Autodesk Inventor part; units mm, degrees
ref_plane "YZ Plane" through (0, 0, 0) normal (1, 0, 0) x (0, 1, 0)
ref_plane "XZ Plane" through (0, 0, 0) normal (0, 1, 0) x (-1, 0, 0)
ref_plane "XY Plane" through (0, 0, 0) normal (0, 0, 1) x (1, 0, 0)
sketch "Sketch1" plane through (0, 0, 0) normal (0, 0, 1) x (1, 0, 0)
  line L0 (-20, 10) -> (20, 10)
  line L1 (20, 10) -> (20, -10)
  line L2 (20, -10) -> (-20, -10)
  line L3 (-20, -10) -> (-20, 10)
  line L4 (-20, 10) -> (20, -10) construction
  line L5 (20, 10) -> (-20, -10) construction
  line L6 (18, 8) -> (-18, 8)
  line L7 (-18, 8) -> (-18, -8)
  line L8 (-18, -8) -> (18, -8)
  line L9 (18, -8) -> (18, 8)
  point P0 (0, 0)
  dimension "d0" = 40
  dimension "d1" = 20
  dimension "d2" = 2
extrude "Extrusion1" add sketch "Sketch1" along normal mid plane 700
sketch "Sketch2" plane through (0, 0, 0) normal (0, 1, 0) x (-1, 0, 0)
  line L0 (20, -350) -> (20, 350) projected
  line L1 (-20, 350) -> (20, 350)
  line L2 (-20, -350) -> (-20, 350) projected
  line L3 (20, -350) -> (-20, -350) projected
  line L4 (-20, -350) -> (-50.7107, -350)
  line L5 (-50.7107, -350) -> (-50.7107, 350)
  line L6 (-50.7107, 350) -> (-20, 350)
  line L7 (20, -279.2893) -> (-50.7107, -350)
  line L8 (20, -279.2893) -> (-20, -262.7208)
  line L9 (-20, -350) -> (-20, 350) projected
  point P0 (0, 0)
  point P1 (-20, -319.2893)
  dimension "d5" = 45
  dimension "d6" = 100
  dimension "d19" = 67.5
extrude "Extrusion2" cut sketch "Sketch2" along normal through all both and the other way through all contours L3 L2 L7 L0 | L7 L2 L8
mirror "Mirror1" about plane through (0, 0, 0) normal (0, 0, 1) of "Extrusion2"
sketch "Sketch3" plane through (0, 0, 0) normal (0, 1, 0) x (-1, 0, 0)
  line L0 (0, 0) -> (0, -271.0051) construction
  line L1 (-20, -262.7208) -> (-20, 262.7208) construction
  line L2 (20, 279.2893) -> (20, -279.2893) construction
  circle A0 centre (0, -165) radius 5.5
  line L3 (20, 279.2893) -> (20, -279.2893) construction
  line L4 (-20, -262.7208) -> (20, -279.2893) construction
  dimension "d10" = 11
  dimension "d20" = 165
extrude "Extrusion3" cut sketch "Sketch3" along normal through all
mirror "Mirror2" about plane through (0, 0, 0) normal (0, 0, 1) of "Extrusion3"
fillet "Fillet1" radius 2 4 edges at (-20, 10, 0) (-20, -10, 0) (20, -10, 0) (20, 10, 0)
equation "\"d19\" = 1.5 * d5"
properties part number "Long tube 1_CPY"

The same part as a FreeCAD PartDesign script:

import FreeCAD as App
import Part
import Sketcher

V = App.Vector
Q = App.Units.Quantity


def edges_at(feature, points):
    """Names of the edges that pass closest to the given points."""
    edges = feature.Shape.Edges
    near = lambda p: min(range(len(edges)), key=lambda i: edges[i].distToShape(Part.Vertex(*p))[0])
    return sorted({f"Edge{near(p) + 1}" for p in points})

doc = App.newDocument("Part")
params = doc.addObject("Spreadsheet::Sheet", "Params")
for row, (alias, value) in enumerate([
    ("sketch1_width", "40 mm"),
    ("sketch1_height", "20 mm"),
    ("pad1_length", "700 mm"),
    ("sketch2_width", "40 mm"),
    ("sketch3_diameter", "11 mm"),
    ("fillet_radius", "2 mm"),
], start=1):
    params.set(f"A{row}", alias)
    params.set(f"B{row}", "=" + value)
    params.setAlias(f"B{row}", alias)

body = doc.addObject("PartDesign::Body", "Body")

sketch1 = body.newObject("Sketcher::SketchObject", "Sketch")
sketch1.AttachmentSupport = (doc.getObject("XY_Plane"), [""])
sketch1.MapMode = "FlatFace"
sketch1.addGeometry(Part.LineSegment(V(20, 10, 0), V(-20, 10, 0)), False)
sketch1.addGeometry(Part.LineSegment(V(-20, 10, 0), V(-20, -10, 0)), False)
sketch1.addGeometry(Part.LineSegment(V(-20, -10, 0), V(20, -10, 0)), False)
sketch1.addGeometry(Part.LineSegment(V(20, -10, 0), V(20, 10, 0)), False)
sketch1.addGeometry(Part.LineSegment(V(-18, 8, 0), V(18, 8, 0)), False)
sketch1.addGeometry(Part.LineSegment(V(18, 8, 0), V(18, -8, 0)), False)
sketch1.addGeometry(Part.LineSegment(V(18, -8, 0), V(-18, -8, 0)), False)
sketch1.addGeometry(Part.LineSegment(V(-18, -8, 0), V(-18, 8, 0)), False)
sketch1.addConstraint(Sketcher.Constraint("Coincident", 0, 2, 1, 1))
sketch1.addConstraint(Sketcher.Constraint("Coincident", 1, 2, 2, 1))
sketch1.addConstraint(Sketcher.Constraint("Coincident", 2, 2, 3, 1))
sketch1.addConstraint(Sketcher.Constraint("Coincident", 3, 2, 0, 1))
sketch1.addConstraint(Sketcher.Constraint("Coincident", 4, 2, 5, 1))
sketch1.addConstraint(Sketcher.Constraint("Coincident", 5, 2, 6, 1))
sketch1.addConstraint(Sketcher.Constraint("Coincident", 6, 2, 7, 1))
sketch1.addConstraint(Sketcher.Constraint("Coincident", 7, 2, 4, 1))
sketch1.addConstraint(Sketcher.Constraint("Horizontal", 0))
sketch1.addConstraint(Sketcher.Constraint("Vertical", 1))
sketch1.addConstraint(Sketcher.Constraint("Horizontal", 2))
sketch1.addConstraint(Sketcher.Constraint("Vertical", 3))
sketch1.addConstraint(Sketcher.Constraint("Horizontal", 4))
sketch1.addConstraint(Sketcher.Constraint("Vertical", 5))
sketch1.addConstraint(Sketcher.Constraint("Horizontal", 6))
sketch1.addConstraint(Sketcher.Constraint("Vertical", 7))
sketch1.addConstraint(Sketcher.Constraint("Symmetric", 0, 2, 2, 2, -1, 1))
sketch1.addConstraint(Sketcher.Constraint("Symmetric", 4, 2, 6, 2, -1, 1))
sketch1.addConstraint(Sketcher.Constraint("DistanceX", 0, 2, 0, 1, 40.0))
sketch1.addConstraint(Sketcher.Constraint("DistanceY", 1, 2, 1, 1, 20.0))
sketch1.addConstraint(Sketcher.Constraint("DistanceX", 4, 2, 3, 2, 2.0))
sketch1.addConstraint(Sketcher.Constraint("DistanceY", 4, 2, 3, 2, 2.0))
sketch1.setExpression("Constraints[18]", "Params.sketch1_width")
sketch1.setExpression("Constraints[19]", "Params.sketch1_height")
pad1 = body.newObject("PartDesign::Pad", "Pad")
pad1.Profile = sketch1
pad1.setExpression("Length", "Params.pad1_length")
pad1.Midplane = True

sketch2 = body.newObject("Sketcher::SketchObject", "Sketch001")
sketch2.AttachmentSupport = (doc.getObject("XZ_Plane"), [""])
sketch2.MapMode = "FlatFace"
sketch2.addGeometry(Part.LineSegment(V(20, -350, 0), V(-20, -350, 0)), False)
sketch2.addGeometry(Part.LineSegment(V(-20, -350, 0), V(-20, -279, 0)), False)
sketch2.addGeometry(Part.LineSegment(V(-20, -279, 0), V(20, -263, 0)), False)
sketch2.addGeometry(Part.LineSegment(V(20, -263, 0), V(20, -350, 0)), False)
sketch2.addConstraint(Sketcher.Constraint("Coincident", 0, 2, 1, 1))
sketch2.addConstraint(Sketcher.Constraint("Coincident", 1, 2, 2, 1))
sketch2.addConstraint(Sketcher.Constraint("Coincident", 2, 2, 3, 1))
sketch2.addConstraint(Sketcher.Constraint("Coincident", 3, 2, 0, 1))
sketch2.addConstraint(Sketcher.Constraint("Horizontal", 0))
sketch2.addConstraint(Sketcher.Constraint("Vertical", 1))
sketch2.addConstraint(Sketcher.Constraint("Vertical", 3))
sketch2.addConstraint(Sketcher.Constraint("DistanceX", 0, 2, 0, 1, 40.0))
sketch2.addConstraint(Sketcher.Constraint("DistanceX", 0, 2, -1, 1, 20.0))
sketch2.addConstraint(Sketcher.Constraint("DistanceY", 0, 2, -1, 1, 350.0))
sketch2.addConstraint(Sketcher.Constraint("Angle", 2, Q("22.5 deg")))
sketch2.addConstraint(Sketcher.Constraint("DistanceY", 1, 1, 1, 2, 70.7107))
sketch2.setExpression("Constraints[7]", "Params.sketch2_width")
pocket1 = body.newObject("PartDesign::Pocket", "Pocket")
pocket1.Profile = sketch2
pocket1.Type = "ThroughAll"
pocket1.Midplane = True
doc.recompute()

mirrored = body.newObject("PartDesign::Mirrored", "Mirrored")
mirrored.Originals = [pocket1]
mirrored.MirrorPlane = (doc.getObject("XY_Plane"), [""])
body.Tip = mirrored

sketch3 = body.newObject("Sketcher::SketchObject", "Sketch002")
sketch3.AttachmentSupport = (doc.getObject("XZ_Plane"), [""])
sketch3.MapMode = "FlatFace"
sketch3.addGeometry(Part.Circle(V(0, -165, 0), V(0, 0, 1), 6), False)
sketch3.addConstraint(Sketcher.Constraint("PointOnObject", 0, 3, -2))
sketch3.addConstraint(Sketcher.Constraint("Diameter", 0, 11.0))
sketch3.addConstraint(Sketcher.Constraint("DistanceY", 0, 3, -1, 1, 165.0))
sketch3.setExpression("Constraints[1]", "Params.sketch3_diameter")
pocket2 = body.newObject("PartDesign::Pocket", "Pocket001")
pocket2.Profile = sketch3
pocket2.Type = "ThroughAll"
doc.recompute()

mirrored2 = body.newObject("PartDesign::Mirrored", "Mirrored001")
mirrored2.Originals = [pocket2]
mirrored2.MirrorPlane = (doc.getObject("XY_Plane"), [""])
body.Tip = mirrored2
doc.recompute()

fillet = body.newObject("PartDesign::Fillet", "Fillet")
fillet.Base = (mirrored2, edges_at(mirrored2, [
    (-20, 10, 0),
    (-20, -10, 0),
    (20, -10, 0),
    (20, 10, 0),
]))
fillet.setExpression("Radius", "Params.fillet_radius")

doc.recompute()
